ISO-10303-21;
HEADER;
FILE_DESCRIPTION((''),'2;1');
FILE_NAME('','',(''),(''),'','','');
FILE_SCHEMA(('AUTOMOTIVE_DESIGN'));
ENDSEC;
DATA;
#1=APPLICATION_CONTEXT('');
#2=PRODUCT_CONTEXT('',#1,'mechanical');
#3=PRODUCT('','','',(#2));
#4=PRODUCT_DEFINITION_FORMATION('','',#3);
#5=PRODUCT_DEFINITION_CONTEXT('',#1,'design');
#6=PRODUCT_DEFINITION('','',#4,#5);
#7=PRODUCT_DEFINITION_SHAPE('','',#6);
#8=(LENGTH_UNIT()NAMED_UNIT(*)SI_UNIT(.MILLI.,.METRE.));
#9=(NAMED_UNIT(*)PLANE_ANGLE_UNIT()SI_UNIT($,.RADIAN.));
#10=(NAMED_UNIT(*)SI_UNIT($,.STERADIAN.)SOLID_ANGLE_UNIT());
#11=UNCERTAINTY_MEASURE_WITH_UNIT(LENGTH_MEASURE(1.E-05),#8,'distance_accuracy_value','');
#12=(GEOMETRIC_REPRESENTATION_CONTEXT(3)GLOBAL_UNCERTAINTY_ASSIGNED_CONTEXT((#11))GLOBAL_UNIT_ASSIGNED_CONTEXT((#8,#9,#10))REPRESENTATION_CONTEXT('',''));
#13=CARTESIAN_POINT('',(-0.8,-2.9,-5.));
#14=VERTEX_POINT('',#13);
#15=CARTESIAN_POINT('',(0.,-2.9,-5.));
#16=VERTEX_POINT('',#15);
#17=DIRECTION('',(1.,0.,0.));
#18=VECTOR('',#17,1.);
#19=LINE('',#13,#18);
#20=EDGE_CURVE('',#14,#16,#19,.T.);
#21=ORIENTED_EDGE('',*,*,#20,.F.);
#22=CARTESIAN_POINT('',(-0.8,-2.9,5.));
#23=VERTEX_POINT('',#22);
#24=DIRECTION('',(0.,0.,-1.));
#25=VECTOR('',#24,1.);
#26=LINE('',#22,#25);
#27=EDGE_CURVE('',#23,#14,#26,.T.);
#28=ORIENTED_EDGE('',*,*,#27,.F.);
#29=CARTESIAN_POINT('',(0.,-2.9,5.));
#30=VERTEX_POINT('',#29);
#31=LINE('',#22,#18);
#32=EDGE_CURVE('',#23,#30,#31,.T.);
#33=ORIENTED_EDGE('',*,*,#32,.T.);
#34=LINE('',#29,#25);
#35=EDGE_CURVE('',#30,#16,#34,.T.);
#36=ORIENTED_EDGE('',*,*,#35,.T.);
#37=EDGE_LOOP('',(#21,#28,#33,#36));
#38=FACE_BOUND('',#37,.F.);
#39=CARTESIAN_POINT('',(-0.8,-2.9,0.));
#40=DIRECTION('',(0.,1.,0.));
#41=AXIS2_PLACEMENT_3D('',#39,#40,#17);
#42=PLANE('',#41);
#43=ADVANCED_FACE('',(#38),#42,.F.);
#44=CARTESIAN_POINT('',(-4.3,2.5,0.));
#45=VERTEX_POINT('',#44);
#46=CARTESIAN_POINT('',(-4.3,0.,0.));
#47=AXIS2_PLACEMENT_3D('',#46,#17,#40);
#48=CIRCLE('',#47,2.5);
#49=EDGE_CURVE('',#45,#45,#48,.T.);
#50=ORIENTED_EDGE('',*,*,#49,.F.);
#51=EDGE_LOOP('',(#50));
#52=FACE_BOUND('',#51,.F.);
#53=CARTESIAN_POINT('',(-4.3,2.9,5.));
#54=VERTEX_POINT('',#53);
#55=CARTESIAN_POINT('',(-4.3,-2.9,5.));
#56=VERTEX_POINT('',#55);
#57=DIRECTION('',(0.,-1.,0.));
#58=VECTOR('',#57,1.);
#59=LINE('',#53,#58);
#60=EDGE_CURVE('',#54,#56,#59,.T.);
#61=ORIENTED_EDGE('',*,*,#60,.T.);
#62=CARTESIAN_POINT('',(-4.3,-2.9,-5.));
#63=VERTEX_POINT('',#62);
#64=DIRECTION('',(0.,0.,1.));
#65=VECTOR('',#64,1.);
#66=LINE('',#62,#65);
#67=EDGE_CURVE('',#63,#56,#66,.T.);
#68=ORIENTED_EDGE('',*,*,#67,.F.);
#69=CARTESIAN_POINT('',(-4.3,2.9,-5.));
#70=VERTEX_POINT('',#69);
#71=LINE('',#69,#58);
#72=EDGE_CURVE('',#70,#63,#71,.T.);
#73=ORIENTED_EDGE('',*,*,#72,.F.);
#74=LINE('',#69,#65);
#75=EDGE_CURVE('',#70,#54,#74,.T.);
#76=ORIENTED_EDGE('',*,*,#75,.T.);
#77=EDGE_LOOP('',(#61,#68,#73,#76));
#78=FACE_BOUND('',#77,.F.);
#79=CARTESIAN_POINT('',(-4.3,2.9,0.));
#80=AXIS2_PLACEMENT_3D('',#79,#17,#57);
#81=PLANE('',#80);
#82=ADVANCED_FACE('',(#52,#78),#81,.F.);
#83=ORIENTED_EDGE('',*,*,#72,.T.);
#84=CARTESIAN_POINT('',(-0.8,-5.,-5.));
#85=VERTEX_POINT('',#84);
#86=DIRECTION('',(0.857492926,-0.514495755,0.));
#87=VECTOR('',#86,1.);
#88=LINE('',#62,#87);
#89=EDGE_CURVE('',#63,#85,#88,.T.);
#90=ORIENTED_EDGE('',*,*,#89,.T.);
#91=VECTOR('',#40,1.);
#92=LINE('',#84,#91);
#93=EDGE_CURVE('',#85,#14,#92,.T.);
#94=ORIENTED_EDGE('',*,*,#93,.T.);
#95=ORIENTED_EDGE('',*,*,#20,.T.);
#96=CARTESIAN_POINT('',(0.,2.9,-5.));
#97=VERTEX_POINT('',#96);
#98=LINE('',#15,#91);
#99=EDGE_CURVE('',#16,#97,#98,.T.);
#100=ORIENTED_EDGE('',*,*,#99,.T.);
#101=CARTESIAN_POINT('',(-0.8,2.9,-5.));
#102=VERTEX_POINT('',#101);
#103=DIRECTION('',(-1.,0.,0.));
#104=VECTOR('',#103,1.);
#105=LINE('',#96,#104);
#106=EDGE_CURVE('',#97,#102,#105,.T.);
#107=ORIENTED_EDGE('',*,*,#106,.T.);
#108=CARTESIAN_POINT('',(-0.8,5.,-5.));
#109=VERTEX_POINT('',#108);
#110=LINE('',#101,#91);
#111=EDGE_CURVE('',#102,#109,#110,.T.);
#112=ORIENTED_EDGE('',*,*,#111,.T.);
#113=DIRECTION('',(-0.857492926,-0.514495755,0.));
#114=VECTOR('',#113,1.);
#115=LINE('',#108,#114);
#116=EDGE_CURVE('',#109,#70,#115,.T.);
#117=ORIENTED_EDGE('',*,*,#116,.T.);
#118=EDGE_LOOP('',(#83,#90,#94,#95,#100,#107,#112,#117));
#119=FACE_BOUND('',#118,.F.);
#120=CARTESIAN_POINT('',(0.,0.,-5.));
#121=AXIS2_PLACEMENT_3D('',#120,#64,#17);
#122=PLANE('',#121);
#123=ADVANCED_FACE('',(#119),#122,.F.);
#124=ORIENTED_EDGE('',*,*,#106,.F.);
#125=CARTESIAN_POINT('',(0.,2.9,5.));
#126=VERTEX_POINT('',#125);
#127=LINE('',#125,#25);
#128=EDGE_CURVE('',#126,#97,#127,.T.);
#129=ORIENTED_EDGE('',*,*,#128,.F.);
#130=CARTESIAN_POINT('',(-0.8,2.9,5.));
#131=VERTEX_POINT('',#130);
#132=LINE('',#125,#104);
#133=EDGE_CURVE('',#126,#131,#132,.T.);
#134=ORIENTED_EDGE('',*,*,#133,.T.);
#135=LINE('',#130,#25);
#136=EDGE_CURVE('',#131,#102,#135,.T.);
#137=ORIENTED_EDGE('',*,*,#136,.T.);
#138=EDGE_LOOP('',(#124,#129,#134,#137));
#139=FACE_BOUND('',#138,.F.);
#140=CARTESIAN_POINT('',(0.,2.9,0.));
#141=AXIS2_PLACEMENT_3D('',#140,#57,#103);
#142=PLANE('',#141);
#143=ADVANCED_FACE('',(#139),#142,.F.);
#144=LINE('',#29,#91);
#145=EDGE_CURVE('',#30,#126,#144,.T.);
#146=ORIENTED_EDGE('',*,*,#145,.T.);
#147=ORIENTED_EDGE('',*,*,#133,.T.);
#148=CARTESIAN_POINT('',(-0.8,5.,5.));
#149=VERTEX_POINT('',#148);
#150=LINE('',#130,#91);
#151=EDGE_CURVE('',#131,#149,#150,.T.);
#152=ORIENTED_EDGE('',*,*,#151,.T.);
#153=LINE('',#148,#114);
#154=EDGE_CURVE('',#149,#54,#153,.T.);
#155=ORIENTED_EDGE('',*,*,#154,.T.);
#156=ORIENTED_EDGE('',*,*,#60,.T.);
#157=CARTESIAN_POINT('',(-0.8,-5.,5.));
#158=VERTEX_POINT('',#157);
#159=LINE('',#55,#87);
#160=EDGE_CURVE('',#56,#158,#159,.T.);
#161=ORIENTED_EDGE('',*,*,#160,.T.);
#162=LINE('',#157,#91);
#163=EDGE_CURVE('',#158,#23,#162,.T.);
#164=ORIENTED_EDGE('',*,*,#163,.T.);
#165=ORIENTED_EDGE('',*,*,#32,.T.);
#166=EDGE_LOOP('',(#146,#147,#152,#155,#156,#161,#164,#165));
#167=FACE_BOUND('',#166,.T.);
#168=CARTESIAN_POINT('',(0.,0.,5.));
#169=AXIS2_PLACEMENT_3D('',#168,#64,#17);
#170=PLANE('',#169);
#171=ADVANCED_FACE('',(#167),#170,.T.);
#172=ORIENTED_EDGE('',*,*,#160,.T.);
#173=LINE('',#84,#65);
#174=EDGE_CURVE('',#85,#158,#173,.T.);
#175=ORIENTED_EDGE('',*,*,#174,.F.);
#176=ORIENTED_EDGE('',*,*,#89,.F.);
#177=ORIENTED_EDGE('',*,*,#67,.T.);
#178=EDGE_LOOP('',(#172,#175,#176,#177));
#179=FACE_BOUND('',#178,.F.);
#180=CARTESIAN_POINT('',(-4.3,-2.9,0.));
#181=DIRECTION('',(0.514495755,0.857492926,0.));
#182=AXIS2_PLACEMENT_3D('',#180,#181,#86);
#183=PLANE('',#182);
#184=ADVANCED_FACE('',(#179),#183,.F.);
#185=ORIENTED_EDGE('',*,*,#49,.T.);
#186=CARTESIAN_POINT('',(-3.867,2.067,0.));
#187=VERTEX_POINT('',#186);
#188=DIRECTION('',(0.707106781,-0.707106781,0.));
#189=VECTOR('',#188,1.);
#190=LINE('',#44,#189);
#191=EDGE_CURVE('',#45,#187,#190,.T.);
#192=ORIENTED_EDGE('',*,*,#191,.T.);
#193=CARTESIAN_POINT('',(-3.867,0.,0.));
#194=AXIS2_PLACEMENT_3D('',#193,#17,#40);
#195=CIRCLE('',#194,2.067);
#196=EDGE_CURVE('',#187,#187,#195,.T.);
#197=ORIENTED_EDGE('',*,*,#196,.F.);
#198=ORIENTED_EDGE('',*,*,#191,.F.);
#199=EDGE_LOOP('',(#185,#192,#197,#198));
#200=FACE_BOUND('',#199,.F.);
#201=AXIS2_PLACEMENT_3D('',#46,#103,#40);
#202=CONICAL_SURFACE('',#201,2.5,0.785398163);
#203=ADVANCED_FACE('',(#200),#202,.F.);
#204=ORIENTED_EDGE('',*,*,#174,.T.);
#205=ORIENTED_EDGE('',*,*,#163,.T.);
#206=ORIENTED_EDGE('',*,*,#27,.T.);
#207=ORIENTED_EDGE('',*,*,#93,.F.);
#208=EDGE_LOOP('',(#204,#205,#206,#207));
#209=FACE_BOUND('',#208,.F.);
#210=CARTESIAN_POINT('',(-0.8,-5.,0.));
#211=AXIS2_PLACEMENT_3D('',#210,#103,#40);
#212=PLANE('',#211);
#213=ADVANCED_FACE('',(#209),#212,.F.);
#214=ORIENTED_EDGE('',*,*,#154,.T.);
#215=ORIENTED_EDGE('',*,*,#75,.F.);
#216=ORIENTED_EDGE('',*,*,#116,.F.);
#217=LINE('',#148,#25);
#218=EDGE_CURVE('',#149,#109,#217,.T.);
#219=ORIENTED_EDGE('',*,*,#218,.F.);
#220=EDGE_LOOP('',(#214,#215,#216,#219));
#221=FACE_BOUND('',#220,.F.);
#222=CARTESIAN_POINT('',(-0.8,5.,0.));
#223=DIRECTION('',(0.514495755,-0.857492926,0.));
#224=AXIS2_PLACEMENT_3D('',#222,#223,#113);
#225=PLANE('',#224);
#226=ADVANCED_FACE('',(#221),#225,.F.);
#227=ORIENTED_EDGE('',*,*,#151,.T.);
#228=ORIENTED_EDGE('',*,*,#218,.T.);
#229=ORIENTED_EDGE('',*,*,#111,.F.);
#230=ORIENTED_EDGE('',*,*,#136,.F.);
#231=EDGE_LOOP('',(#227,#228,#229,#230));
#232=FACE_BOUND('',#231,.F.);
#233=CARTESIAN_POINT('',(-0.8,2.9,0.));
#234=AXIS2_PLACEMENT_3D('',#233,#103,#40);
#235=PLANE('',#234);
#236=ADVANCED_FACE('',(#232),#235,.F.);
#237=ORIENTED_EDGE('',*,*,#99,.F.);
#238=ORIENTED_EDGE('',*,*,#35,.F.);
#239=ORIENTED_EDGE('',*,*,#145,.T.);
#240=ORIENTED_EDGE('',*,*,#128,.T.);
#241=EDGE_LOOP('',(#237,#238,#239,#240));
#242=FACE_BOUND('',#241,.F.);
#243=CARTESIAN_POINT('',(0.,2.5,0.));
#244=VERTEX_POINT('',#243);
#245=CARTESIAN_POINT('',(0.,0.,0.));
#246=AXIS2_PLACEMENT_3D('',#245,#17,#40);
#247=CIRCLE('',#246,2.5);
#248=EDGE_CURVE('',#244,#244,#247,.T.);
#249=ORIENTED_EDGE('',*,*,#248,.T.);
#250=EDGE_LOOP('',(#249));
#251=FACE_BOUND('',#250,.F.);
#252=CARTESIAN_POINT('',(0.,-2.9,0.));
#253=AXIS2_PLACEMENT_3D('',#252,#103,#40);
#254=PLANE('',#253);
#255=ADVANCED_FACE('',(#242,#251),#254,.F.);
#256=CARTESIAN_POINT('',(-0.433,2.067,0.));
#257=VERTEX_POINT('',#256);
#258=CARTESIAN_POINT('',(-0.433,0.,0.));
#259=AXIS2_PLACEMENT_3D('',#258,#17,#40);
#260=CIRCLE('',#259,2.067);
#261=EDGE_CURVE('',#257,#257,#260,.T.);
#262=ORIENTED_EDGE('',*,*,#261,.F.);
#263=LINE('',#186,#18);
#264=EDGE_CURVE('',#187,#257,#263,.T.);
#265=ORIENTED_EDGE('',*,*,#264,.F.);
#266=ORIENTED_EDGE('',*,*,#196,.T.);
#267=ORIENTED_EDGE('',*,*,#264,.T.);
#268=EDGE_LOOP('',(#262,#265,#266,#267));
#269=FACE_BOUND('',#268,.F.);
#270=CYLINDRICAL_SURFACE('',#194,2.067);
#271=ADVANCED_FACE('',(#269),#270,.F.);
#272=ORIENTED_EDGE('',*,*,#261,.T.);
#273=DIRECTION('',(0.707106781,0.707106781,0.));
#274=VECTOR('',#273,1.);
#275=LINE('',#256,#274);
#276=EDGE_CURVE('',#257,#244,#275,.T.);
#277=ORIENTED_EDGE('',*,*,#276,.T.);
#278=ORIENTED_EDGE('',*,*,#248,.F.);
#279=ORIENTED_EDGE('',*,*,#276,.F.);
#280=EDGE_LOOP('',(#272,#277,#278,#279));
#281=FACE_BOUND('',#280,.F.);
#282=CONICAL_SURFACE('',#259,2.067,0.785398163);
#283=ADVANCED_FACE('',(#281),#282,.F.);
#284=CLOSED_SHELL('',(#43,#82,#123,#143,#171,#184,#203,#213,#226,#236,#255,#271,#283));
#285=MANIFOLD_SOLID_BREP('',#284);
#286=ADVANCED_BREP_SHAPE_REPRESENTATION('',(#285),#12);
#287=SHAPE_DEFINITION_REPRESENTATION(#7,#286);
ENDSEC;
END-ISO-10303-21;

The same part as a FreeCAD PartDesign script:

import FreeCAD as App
import Part
import Sketcher
from FreeCAD import Vector
Q = App.Units.Quantity


def add_polygon(sketch, points):
    """Adds a closed chain of lines whose ends are joined by coincident constraints."""
    first, n = sketch.GeometryCount, len(points)
    for a, b in zip(points, points[1:] + points[:1]):
        sketch.addGeometry(Part.LineSegment(App.Vector(*a, 0), App.Vector(*b, 0)), False)
    for i in range(n):
        sketch.addConstraint(Sketcher.Constraint("Coincident", first + i, 2, first + (i + 1) % n, 1))

doc = App.newDocument("Part")
body = doc.addObject("PartDesign::Body", "Body")

sketch1 = body.newObject("Sketcher::SketchObject", "Sketch")
sketch1.AttachmentSupport = (doc.getObject("XY_Plane"), [""])
sketch1.MapMode = "FlatFace"
add_polygon(sketch1, [(-0.8, 5), (-4.3, 2.9), (-4.3, -2.9), (-0.8, -5), (-0.8, -2.9), (0, -2.9), (0, 2.9), (-0.8, 2.9)])
sketch1.addConstraint([
    Sketcher.Constraint("Vertical", 1),
    Sketcher.Constraint("Vertical", 3),
    Sketcher.Constraint("Horizontal", 4),
    Sketcher.Constraint("Vertical", 5),
    Sketcher.Constraint("Horizontal", 6),
    Sketcher.Constraint("Vertical", 7),
    Sketcher.Constraint("Symmetric", 4, 2, 5, 2, -1, 1),
    Sketcher.Constraint("Symmetric", 2, 2, 7, 2, -1),
    Sketcher.Constraint("Horizontal", 1, 2, 3, 2),
    Sketcher.Constraint("Horizontal", 0, 2, 5, 2),
    Sketcher.Constraint("DistanceX", 4, 1, 4, 2, Q("0.8 mm")),
    Sketcher.Constraint("DistanceY", 1, 2, 1, 1, Q("5.8 mm")),
    Sketcher.Constraint("DistanceY", 3, 1, 3, 2, Q("2.1 mm")),
    Sketcher.Constraint("DistanceX", 0, 2, -1, 1, Q("4.3 mm")),
])
pad1 = body.newObject("PartDesign::Pad", "Pad")
pad1.Profile = sketch1
pad1.Length = 10
pad1.Midplane = True

sketch2 = body.newObject("Sketcher::SketchObject", "Sketch001")
sketch2.AttachmentSupport = (doc.getObject("XY_Plane"), [""])
sketch2.MapMode = "FlatFace"
add_polygon(sketch2, [(-4.3, 0), (0, 0), (0, 2.5), (-0.4, 2.1), (-3.9, 2.1), (-4.3, 2.5)])
sketch2.addConstraint([
    Sketcher.Constraint("Horizontal", 0),
    Sketcher.Constraint("Vertical", 1),
    Sketcher.Constraint("Horizontal", 3),
    Sketcher.Constraint("Vertical", 5),
    Sketcher.Constraint("Coincident", 0, 2, -1, 1),
    Sketcher.Constraint("Perpendicular", 2, 4),
    Sketcher.Constraint("Horizontal", 1, 2, 4, 2),
    Sketcher.Constraint("Equal", 2, 4),
    Sketcher.Constraint("DistanceX", 0, 1, 0, 2, Q("4.3 mm")),
    Sketcher.Constraint("DistanceY", 1, 1, 1, 2, Q("2.5 mm")),
    Sketcher.Constraint("DistanceX", 3, 2, 3, 1, Q("3.434 mm")),
])
groove = body.newObject("PartDesign::Groove", "Groove")
groove.Profile = sketch2
groove.ReferenceAxis = (sketch2, ["H_Axis"])
groove.Angle = 360

doc.recompute()
